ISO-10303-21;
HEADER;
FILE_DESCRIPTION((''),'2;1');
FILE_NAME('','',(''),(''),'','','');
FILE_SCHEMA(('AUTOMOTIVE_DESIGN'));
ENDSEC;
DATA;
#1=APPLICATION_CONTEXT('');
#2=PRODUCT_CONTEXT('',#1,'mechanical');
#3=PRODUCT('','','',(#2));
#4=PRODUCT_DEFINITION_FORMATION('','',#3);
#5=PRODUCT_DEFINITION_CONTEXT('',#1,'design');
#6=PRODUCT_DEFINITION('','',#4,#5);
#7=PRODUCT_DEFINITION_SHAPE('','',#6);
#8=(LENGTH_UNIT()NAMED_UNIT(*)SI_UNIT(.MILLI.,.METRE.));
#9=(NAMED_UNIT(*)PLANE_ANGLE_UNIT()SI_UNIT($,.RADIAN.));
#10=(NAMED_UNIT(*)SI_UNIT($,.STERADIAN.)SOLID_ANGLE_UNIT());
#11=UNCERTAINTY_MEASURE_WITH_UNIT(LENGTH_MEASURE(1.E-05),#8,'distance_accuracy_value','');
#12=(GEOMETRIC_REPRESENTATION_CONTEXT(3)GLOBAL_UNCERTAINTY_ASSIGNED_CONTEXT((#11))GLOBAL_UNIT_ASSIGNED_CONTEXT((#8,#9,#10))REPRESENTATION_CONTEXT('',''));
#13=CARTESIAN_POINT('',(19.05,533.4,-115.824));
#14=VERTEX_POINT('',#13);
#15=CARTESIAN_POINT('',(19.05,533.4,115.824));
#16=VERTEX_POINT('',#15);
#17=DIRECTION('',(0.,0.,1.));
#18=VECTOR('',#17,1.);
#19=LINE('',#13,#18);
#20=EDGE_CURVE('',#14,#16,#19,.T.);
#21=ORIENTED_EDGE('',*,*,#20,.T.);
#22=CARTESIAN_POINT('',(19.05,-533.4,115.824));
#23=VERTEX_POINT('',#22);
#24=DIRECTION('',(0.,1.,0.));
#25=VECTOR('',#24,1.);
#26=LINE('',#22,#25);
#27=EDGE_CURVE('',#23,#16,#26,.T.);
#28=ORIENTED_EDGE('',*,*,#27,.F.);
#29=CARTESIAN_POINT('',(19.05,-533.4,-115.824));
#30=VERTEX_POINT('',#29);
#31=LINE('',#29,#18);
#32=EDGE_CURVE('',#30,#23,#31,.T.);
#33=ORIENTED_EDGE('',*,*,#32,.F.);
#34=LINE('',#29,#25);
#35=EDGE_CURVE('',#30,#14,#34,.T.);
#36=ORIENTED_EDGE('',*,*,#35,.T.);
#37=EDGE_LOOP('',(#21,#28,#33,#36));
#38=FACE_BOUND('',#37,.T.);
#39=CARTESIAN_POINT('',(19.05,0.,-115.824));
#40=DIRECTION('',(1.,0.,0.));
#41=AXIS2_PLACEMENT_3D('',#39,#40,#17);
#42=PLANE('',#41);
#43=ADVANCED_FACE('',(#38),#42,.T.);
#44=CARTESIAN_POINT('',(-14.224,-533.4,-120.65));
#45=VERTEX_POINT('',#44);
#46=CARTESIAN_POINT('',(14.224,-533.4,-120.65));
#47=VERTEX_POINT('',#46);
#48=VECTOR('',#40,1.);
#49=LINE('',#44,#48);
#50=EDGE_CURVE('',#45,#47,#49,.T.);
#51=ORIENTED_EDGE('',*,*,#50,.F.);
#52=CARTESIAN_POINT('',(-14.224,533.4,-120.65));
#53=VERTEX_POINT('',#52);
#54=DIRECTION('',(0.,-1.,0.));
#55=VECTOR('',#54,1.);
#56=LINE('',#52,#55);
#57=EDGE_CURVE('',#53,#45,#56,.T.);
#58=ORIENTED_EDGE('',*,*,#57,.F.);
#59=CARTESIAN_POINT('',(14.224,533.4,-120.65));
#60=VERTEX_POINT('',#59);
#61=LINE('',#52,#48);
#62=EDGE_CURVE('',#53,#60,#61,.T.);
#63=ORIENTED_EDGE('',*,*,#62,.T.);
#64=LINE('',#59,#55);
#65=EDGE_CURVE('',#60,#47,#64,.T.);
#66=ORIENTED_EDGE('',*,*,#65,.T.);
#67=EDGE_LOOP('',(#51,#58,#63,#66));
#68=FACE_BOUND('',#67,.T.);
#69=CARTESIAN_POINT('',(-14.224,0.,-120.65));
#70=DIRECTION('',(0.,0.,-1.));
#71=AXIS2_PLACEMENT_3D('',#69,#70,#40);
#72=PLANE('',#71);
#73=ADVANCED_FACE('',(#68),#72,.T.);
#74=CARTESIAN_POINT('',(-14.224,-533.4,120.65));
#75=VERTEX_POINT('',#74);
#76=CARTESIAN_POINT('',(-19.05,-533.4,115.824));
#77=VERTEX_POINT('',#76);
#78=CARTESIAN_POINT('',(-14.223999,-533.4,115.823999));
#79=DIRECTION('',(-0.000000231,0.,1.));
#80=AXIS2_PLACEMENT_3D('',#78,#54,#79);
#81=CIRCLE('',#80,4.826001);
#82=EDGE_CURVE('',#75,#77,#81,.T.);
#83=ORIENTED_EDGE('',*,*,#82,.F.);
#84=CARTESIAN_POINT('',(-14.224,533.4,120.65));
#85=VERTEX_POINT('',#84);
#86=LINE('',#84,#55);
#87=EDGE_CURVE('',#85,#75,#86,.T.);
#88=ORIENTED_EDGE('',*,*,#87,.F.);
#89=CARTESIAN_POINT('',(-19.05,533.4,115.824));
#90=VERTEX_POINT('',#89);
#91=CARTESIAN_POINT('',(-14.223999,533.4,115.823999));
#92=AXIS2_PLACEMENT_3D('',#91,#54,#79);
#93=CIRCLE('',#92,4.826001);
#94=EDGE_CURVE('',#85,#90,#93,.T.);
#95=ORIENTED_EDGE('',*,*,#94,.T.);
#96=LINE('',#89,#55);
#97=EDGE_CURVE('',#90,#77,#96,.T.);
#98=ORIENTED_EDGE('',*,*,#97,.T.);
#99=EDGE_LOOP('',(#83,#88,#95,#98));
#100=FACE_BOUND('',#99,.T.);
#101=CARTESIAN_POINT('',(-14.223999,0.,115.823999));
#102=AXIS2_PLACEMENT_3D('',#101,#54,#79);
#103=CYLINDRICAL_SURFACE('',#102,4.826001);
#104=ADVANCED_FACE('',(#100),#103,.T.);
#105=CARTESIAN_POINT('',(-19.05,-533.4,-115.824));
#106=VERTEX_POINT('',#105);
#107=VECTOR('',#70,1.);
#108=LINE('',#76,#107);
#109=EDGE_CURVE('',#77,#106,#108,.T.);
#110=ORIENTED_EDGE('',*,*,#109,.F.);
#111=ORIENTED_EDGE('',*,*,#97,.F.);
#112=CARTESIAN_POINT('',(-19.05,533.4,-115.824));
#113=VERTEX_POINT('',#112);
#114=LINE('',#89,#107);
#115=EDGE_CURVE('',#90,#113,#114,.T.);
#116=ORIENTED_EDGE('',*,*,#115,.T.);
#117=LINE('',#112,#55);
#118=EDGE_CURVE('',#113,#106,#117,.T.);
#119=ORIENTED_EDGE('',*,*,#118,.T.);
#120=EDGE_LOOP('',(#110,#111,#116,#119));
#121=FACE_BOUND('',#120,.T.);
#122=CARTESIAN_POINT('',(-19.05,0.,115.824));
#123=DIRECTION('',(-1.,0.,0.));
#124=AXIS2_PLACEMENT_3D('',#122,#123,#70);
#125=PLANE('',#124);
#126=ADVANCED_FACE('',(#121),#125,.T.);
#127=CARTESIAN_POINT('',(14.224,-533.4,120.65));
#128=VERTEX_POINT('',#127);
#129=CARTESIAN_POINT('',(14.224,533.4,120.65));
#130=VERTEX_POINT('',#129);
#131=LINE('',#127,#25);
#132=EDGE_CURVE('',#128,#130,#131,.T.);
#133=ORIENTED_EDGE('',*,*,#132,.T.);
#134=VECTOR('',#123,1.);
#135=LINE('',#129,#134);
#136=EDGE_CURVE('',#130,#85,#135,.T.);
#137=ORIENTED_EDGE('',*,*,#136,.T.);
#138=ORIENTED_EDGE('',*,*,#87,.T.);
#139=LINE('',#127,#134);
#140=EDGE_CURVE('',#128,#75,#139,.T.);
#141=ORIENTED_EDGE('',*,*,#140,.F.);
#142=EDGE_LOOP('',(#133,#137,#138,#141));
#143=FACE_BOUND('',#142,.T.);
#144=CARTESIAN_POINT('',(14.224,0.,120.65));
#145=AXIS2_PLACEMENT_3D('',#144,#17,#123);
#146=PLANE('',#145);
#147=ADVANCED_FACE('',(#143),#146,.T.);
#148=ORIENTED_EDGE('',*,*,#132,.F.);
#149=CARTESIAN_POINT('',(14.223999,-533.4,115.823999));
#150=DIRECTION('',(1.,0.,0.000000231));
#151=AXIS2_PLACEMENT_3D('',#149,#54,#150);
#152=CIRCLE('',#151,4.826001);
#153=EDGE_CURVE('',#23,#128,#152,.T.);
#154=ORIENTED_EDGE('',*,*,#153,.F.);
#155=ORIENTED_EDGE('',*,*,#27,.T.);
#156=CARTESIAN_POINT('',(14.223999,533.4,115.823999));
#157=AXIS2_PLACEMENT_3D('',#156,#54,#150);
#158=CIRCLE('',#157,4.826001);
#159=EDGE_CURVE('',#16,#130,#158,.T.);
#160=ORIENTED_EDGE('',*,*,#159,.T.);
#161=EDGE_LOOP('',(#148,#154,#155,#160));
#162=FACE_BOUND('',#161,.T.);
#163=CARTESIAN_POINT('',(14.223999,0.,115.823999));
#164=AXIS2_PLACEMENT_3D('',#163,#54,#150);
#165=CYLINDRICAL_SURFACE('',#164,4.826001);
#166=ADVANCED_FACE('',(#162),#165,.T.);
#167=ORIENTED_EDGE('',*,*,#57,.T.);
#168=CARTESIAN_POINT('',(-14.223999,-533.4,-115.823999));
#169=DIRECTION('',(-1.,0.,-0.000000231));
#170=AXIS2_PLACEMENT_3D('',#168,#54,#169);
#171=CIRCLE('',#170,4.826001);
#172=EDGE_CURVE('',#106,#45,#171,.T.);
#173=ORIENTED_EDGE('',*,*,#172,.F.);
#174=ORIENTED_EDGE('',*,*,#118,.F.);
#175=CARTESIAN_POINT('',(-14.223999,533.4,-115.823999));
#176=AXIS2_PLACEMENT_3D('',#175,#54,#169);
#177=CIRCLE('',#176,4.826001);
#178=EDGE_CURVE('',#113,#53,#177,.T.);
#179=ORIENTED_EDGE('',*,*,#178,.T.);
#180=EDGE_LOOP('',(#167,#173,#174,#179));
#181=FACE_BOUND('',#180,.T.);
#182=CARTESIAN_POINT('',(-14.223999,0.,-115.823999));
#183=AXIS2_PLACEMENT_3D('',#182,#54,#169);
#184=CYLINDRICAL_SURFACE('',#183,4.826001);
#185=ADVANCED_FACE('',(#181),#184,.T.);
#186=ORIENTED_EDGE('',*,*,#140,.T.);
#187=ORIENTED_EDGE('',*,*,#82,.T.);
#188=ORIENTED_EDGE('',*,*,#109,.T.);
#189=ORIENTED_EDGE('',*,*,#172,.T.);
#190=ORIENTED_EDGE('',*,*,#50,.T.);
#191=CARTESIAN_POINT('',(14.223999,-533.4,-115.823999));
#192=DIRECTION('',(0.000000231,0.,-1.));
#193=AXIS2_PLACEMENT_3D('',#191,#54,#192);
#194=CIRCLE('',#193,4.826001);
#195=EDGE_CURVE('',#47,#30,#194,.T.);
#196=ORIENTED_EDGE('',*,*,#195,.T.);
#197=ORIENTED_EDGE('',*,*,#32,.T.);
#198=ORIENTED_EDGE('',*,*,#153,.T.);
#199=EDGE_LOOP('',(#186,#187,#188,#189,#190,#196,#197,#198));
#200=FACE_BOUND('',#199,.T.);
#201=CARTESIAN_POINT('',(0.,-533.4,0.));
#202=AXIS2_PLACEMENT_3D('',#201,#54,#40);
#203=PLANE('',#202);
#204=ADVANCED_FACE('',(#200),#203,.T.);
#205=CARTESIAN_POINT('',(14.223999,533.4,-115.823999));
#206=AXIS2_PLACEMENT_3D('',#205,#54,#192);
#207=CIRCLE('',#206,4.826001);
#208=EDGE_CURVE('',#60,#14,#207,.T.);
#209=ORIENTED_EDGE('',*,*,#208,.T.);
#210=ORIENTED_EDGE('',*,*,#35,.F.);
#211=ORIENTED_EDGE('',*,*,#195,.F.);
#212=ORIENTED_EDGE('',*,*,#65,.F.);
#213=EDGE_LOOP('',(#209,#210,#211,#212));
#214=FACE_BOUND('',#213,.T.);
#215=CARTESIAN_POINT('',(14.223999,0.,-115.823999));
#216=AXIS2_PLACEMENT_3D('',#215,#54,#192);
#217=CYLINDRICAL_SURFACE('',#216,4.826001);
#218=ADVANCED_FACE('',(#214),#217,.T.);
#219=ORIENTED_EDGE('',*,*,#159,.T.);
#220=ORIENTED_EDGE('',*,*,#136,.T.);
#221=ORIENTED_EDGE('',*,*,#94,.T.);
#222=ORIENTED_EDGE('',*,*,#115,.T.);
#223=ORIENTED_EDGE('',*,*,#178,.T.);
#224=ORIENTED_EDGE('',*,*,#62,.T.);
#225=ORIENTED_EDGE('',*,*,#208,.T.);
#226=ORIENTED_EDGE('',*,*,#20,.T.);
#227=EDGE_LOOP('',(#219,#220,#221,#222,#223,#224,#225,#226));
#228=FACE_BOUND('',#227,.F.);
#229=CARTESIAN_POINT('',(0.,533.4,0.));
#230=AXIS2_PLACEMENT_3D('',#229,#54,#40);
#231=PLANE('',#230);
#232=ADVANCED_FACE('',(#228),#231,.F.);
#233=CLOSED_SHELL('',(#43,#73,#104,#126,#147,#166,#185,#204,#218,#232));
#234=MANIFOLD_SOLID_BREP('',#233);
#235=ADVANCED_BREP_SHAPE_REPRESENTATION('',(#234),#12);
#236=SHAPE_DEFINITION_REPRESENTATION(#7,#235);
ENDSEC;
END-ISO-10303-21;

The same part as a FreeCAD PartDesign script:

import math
import FreeCAD as App
import Part
import Sketcher
Q = App.Units.Quantity

doc = App.newDocument("Part")
body = doc.addObject("PartDesign::Body", "Body")

# Sketch on XZ plane
sketch1 = doc.addObject("Sketcher::SketchObject", "Sketch")
body.addObject(sketch1)
sketch1.AttachmentSupport = (doc.XZ_Plane, [""])
sketch1.MapMode = "FlatFace"
sketch1.addGeometry([
    Part.LineSegment(App.Vector(14.224, 120.65, 0), App.Vector(-14.224, 120.65, 0)),  # 0
    Part.ArcOfCircle(Part.Circle(App.Vector(-14.223999, 115.823999, 0), App.Vector(0, 0, 1), 4.826001), math.radians(90.000013), math.radians(179.999987)),  # 1
    Part.LineSegment(App.Vector(-19.05, 115.824, 0), App.Vector(-19.05, -115.824, 0)),  # 2
    Part.ArcOfCircle(Part.Circle(App.Vector(-14.223999, -115.823999, 0), App.Vector(0, 0, 1), 4.826001), math.radians(-179.999987), math.radians(-90.000013)),  # 3
    Part.LineSegment(App.Vector(-14.224, -120.65, 0), App.Vector(14.224, -120.65, 0)),  # 4
    Part.ArcOfCircle(Part.Circle(App.Vector(14.223999, -115.823999, 0), App.Vector(0, 0, 1), 4.826001), math.radians(-89.999987), math.radians(-0.000013)),  # 5
    Part.LineSegment(App.Vector(19.05, -115.824, 0), App.Vector(19.05, 115.824, 0)),  # 6
    Part.ArcOfCircle(Part.Circle(App.Vector(14.223999, 115.823999, 0), App.Vector(0, 0, 1), 4.826001), math.radians(0.000013), math.radians(89.999987)),  # 7
], False)
sketch1.addConstraint([
    Sketcher.Constraint("Tangent", 0, 2, 1, 1),
    Sketcher.Constraint("Tangent", 1, 2, 2, 1),
    Sketcher.Constraint("Tangent", 2, 2, 3, 1),
    Sketcher.Constraint("Tangent", 3, 2, 4, 1),
    Sketcher.Constraint("Tangent", 4, 2, 5, 1),
    Sketcher.Constraint("Tangent", 5, 2, 6, 1),
    Sketcher.Constraint("Tangent", 6, 2, 7, 1),
    Sketcher.Constraint("Tangent", 7, 2, 0, 1),
    Sketcher.Constraint("Horizontal", 0),
    Sketcher.Constraint("Vertical", 2),
    Sketcher.Constraint("Horizontal", 4),
    Sketcher.Constraint("Vertical", 6),
    Sketcher.Constraint("Equal", 1, 3),
    Sketcher.Constraint("Equal", 3, 5),
    Sketcher.Constraint("Equal", 5, 7),
    Sketcher.Constraint("Symmetric", 1, 3, 5, 3, -1, 1),
    Sketcher.Constraint("Radius", 1, Q("0.19 in")),
    Sketcher.Constraint("DistanceX", 0, 2, 0, 1, Q("1.12 in")),
    Sketcher.Constraint("DistanceY", 2, 2, 2, 1, Q("9.12 in")),
])
pad1 = doc.addObject("PartDesign::Pad", "Pad")
body.addObject(pad1)
pad1.Profile = sketch1
pad1.Length = Q("42 in")
pad1.Midplane = True

doc.recompute()
